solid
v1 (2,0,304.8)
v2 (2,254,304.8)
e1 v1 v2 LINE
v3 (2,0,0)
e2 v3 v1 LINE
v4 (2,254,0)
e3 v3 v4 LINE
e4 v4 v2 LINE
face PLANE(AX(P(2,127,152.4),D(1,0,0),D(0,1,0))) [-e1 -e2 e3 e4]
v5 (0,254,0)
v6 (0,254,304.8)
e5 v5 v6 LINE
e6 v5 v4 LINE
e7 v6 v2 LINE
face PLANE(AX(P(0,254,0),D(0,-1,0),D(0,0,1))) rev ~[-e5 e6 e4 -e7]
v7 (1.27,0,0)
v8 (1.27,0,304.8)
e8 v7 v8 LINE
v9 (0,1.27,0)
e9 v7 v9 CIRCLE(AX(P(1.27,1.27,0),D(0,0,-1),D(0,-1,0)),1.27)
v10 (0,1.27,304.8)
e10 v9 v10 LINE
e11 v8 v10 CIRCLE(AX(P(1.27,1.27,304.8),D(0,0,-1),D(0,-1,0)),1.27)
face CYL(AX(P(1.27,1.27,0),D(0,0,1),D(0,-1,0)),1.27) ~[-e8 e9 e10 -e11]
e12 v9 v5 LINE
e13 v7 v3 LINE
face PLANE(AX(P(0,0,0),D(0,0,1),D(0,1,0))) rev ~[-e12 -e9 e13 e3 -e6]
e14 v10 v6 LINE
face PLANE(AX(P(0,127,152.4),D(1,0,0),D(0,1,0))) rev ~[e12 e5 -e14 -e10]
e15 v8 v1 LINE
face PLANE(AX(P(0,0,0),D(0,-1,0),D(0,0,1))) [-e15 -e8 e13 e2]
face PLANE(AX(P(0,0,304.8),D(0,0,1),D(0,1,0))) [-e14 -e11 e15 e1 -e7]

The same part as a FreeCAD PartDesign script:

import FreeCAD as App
import Part
import Sketcher

V = App.Vector
Q = App.Units.Quantity


def edges_at(feature, points):
    """Names of the edges that pass closest to the given points."""
    edges = feature.Shape.Edges
    near = lambda p: min(range(len(edges)), key=lambda i: edges[i].distToShape(Part.Vertex(*p))[0])
    return sorted({f"Edge{near(p) + 1}" for p in points})


def add_polygon(sketch, points):
    """Adds a closed chain of lines whose ends are joined by coincident constraints."""
    first, n = sketch.GeometryCount, len(points)
    for a, b in zip(points, points[1:] + points[:1]):
        sketch.addGeometry(Part.LineSegment(App.Vector(*a, 0), App.Vector(*b, 0)), False)
    for i in range(n):
        sketch.addConstraint(Sketcher.Constraint("Coincident", first + i, 2, first + (i + 1) % n, 1))

doc = App.newDocument("Part")
body = doc.addObject("PartDesign::Body", "Body")

# Sketch on YZ plane
sketch1 = doc.addObject("Sketcher::SketchObject", "Sketch")
body.addObject(sketch1)
sketch1.AttachmentSupport = (doc.YZ_Plane, [""])
sketch1.MapMode = "FlatFace"
add_polygon(sketch1, [(0, 304.8), (0, 0), (254, 0), (254, 304.8)])  # lines 0-3
sketch1.addConstraint(Sketcher.Constraint("Vertical", 0))
sketch1.addConstraint(Sketcher.Constraint("Horizontal", 1))
sketch1.addConstraint(Sketcher.Constraint("Vertical", 2))
sketch1.addConstraint(Sketcher.Constraint("Horizontal", 3))
sketch1.addConstraint(Sketcher.Constraint("Coincident", 0, 2, -1, 1))
sketch1.addConstraint(Sketcher.Constraint("DistanceX", 1, 1, 1, 2, Q("10 in")))
sketch1.addConstraint(Sketcher.Constraint("DistanceY", 0, 2, 0, 1, Q("12 in")))
pad1 = doc.addObject("PartDesign::Pad", "Pad")
body.addObject(pad1)
pad1.Profile = sketch1
pad1.Length = 2
doc.recompute()

fillet = doc.addObject("PartDesign::Fillet", "Fillet")
body.addObject(fillet)
fillet.Base = (pad1, edges_at(pad1, [(0, 0, 152.4)]))
fillet.Radius = Q("0.05 in")

doc.recompute()
